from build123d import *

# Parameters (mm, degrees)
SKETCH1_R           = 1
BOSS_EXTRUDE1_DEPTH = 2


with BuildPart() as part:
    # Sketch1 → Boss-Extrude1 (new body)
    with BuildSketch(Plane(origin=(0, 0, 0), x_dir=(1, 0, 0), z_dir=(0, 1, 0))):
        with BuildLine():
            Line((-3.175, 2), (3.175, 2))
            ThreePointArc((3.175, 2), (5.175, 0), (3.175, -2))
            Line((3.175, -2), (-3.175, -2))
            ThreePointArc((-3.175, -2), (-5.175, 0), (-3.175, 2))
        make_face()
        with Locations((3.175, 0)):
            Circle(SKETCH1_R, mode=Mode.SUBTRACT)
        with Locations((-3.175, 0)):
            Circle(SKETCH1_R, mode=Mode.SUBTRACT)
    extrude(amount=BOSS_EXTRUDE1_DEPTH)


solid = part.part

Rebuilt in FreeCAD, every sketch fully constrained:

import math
import FreeCAD as App
import Part
import Sketcher
Q = App.Units.Quantity

doc = App.newDocument("Part")
body = doc.addObject("PartDesign::Body", "Body")

# Sketch on XZ plane
sketch1 = body.newObject("Sketcher::SketchObject", "Sketch")
sketch1.AttachmentSupport = (doc.getObject("XZ_Plane"), [""])
sketch1.MapMode = "FlatFace"
sketch1.addGeometry([
    Part.LineSegment(App.Vector(3.175, -2, 0), App.Vector(-3.175, -2, 0)),  # 0
    Part.ArcOfCircle(Part.Circle(App.Vector(-3.175, 0, 0), App.Vector(0, 0, 1), 2), math.radians(90), math.radians(270)),  # 1
    Part.LineSegment(App.Vector(-3.175, 2, 0), App.Vector(3.175, 2, 0)),  # 2
    Part.ArcOfCircle(Part.Circle(App.Vector(3.175, 0, 0), App.Vector(0, 0, 1), 2), math.radians(-90), math.radians(90)),  # 3
    Part.Circle(App.Vector(3.175, 0, 0), App.Vector(0, 0, 1), 1),  # 4
    Part.Circle(App.Vector(-3.175, 0, 0), App.Vector(0, 0, 1), 1),  # 5
], False)
sketch1.addConstraint([
    Sketcher.Constraint("Tangent", 0, 2, 1, 2),
    Sketcher.Constraint("Tangent", 1, 1, 2, 1),
    Sketcher.Constraint("Tangent", 2, 2, 3, 2),
    Sketcher.Constraint("Tangent", 3, 1, 0, 1),
    Sketcher.Constraint("Horizontal", 0),
    Sketcher.Constraint("Horizontal", 2),
    Sketcher.Constraint("Coincident", 4, 3, 3, 3),
    Sketcher.Constraint("Coincident", 5, 3, 1, 3),
    Sketcher.Constraint("Equal", 4, 5),
    Sketcher.Constraint("Symmetric", 1, 3, 3, 3, -1, 1),
    Sketcher.Constraint("Diameter", 4, Q("2 mm")),
    Sketcher.Constraint("Radius", 1, Q("2 mm")),
    Sketcher.Constraint("DistanceX", 0, 2, 0, 1, Q("6.35 mm")),
])
pad1 = body.newObject("PartDesign::Pad", "Pad")
pad1.Profile = sketch1
pad1.Length = 2
pad1.Reversed = True

doc.recompute()
